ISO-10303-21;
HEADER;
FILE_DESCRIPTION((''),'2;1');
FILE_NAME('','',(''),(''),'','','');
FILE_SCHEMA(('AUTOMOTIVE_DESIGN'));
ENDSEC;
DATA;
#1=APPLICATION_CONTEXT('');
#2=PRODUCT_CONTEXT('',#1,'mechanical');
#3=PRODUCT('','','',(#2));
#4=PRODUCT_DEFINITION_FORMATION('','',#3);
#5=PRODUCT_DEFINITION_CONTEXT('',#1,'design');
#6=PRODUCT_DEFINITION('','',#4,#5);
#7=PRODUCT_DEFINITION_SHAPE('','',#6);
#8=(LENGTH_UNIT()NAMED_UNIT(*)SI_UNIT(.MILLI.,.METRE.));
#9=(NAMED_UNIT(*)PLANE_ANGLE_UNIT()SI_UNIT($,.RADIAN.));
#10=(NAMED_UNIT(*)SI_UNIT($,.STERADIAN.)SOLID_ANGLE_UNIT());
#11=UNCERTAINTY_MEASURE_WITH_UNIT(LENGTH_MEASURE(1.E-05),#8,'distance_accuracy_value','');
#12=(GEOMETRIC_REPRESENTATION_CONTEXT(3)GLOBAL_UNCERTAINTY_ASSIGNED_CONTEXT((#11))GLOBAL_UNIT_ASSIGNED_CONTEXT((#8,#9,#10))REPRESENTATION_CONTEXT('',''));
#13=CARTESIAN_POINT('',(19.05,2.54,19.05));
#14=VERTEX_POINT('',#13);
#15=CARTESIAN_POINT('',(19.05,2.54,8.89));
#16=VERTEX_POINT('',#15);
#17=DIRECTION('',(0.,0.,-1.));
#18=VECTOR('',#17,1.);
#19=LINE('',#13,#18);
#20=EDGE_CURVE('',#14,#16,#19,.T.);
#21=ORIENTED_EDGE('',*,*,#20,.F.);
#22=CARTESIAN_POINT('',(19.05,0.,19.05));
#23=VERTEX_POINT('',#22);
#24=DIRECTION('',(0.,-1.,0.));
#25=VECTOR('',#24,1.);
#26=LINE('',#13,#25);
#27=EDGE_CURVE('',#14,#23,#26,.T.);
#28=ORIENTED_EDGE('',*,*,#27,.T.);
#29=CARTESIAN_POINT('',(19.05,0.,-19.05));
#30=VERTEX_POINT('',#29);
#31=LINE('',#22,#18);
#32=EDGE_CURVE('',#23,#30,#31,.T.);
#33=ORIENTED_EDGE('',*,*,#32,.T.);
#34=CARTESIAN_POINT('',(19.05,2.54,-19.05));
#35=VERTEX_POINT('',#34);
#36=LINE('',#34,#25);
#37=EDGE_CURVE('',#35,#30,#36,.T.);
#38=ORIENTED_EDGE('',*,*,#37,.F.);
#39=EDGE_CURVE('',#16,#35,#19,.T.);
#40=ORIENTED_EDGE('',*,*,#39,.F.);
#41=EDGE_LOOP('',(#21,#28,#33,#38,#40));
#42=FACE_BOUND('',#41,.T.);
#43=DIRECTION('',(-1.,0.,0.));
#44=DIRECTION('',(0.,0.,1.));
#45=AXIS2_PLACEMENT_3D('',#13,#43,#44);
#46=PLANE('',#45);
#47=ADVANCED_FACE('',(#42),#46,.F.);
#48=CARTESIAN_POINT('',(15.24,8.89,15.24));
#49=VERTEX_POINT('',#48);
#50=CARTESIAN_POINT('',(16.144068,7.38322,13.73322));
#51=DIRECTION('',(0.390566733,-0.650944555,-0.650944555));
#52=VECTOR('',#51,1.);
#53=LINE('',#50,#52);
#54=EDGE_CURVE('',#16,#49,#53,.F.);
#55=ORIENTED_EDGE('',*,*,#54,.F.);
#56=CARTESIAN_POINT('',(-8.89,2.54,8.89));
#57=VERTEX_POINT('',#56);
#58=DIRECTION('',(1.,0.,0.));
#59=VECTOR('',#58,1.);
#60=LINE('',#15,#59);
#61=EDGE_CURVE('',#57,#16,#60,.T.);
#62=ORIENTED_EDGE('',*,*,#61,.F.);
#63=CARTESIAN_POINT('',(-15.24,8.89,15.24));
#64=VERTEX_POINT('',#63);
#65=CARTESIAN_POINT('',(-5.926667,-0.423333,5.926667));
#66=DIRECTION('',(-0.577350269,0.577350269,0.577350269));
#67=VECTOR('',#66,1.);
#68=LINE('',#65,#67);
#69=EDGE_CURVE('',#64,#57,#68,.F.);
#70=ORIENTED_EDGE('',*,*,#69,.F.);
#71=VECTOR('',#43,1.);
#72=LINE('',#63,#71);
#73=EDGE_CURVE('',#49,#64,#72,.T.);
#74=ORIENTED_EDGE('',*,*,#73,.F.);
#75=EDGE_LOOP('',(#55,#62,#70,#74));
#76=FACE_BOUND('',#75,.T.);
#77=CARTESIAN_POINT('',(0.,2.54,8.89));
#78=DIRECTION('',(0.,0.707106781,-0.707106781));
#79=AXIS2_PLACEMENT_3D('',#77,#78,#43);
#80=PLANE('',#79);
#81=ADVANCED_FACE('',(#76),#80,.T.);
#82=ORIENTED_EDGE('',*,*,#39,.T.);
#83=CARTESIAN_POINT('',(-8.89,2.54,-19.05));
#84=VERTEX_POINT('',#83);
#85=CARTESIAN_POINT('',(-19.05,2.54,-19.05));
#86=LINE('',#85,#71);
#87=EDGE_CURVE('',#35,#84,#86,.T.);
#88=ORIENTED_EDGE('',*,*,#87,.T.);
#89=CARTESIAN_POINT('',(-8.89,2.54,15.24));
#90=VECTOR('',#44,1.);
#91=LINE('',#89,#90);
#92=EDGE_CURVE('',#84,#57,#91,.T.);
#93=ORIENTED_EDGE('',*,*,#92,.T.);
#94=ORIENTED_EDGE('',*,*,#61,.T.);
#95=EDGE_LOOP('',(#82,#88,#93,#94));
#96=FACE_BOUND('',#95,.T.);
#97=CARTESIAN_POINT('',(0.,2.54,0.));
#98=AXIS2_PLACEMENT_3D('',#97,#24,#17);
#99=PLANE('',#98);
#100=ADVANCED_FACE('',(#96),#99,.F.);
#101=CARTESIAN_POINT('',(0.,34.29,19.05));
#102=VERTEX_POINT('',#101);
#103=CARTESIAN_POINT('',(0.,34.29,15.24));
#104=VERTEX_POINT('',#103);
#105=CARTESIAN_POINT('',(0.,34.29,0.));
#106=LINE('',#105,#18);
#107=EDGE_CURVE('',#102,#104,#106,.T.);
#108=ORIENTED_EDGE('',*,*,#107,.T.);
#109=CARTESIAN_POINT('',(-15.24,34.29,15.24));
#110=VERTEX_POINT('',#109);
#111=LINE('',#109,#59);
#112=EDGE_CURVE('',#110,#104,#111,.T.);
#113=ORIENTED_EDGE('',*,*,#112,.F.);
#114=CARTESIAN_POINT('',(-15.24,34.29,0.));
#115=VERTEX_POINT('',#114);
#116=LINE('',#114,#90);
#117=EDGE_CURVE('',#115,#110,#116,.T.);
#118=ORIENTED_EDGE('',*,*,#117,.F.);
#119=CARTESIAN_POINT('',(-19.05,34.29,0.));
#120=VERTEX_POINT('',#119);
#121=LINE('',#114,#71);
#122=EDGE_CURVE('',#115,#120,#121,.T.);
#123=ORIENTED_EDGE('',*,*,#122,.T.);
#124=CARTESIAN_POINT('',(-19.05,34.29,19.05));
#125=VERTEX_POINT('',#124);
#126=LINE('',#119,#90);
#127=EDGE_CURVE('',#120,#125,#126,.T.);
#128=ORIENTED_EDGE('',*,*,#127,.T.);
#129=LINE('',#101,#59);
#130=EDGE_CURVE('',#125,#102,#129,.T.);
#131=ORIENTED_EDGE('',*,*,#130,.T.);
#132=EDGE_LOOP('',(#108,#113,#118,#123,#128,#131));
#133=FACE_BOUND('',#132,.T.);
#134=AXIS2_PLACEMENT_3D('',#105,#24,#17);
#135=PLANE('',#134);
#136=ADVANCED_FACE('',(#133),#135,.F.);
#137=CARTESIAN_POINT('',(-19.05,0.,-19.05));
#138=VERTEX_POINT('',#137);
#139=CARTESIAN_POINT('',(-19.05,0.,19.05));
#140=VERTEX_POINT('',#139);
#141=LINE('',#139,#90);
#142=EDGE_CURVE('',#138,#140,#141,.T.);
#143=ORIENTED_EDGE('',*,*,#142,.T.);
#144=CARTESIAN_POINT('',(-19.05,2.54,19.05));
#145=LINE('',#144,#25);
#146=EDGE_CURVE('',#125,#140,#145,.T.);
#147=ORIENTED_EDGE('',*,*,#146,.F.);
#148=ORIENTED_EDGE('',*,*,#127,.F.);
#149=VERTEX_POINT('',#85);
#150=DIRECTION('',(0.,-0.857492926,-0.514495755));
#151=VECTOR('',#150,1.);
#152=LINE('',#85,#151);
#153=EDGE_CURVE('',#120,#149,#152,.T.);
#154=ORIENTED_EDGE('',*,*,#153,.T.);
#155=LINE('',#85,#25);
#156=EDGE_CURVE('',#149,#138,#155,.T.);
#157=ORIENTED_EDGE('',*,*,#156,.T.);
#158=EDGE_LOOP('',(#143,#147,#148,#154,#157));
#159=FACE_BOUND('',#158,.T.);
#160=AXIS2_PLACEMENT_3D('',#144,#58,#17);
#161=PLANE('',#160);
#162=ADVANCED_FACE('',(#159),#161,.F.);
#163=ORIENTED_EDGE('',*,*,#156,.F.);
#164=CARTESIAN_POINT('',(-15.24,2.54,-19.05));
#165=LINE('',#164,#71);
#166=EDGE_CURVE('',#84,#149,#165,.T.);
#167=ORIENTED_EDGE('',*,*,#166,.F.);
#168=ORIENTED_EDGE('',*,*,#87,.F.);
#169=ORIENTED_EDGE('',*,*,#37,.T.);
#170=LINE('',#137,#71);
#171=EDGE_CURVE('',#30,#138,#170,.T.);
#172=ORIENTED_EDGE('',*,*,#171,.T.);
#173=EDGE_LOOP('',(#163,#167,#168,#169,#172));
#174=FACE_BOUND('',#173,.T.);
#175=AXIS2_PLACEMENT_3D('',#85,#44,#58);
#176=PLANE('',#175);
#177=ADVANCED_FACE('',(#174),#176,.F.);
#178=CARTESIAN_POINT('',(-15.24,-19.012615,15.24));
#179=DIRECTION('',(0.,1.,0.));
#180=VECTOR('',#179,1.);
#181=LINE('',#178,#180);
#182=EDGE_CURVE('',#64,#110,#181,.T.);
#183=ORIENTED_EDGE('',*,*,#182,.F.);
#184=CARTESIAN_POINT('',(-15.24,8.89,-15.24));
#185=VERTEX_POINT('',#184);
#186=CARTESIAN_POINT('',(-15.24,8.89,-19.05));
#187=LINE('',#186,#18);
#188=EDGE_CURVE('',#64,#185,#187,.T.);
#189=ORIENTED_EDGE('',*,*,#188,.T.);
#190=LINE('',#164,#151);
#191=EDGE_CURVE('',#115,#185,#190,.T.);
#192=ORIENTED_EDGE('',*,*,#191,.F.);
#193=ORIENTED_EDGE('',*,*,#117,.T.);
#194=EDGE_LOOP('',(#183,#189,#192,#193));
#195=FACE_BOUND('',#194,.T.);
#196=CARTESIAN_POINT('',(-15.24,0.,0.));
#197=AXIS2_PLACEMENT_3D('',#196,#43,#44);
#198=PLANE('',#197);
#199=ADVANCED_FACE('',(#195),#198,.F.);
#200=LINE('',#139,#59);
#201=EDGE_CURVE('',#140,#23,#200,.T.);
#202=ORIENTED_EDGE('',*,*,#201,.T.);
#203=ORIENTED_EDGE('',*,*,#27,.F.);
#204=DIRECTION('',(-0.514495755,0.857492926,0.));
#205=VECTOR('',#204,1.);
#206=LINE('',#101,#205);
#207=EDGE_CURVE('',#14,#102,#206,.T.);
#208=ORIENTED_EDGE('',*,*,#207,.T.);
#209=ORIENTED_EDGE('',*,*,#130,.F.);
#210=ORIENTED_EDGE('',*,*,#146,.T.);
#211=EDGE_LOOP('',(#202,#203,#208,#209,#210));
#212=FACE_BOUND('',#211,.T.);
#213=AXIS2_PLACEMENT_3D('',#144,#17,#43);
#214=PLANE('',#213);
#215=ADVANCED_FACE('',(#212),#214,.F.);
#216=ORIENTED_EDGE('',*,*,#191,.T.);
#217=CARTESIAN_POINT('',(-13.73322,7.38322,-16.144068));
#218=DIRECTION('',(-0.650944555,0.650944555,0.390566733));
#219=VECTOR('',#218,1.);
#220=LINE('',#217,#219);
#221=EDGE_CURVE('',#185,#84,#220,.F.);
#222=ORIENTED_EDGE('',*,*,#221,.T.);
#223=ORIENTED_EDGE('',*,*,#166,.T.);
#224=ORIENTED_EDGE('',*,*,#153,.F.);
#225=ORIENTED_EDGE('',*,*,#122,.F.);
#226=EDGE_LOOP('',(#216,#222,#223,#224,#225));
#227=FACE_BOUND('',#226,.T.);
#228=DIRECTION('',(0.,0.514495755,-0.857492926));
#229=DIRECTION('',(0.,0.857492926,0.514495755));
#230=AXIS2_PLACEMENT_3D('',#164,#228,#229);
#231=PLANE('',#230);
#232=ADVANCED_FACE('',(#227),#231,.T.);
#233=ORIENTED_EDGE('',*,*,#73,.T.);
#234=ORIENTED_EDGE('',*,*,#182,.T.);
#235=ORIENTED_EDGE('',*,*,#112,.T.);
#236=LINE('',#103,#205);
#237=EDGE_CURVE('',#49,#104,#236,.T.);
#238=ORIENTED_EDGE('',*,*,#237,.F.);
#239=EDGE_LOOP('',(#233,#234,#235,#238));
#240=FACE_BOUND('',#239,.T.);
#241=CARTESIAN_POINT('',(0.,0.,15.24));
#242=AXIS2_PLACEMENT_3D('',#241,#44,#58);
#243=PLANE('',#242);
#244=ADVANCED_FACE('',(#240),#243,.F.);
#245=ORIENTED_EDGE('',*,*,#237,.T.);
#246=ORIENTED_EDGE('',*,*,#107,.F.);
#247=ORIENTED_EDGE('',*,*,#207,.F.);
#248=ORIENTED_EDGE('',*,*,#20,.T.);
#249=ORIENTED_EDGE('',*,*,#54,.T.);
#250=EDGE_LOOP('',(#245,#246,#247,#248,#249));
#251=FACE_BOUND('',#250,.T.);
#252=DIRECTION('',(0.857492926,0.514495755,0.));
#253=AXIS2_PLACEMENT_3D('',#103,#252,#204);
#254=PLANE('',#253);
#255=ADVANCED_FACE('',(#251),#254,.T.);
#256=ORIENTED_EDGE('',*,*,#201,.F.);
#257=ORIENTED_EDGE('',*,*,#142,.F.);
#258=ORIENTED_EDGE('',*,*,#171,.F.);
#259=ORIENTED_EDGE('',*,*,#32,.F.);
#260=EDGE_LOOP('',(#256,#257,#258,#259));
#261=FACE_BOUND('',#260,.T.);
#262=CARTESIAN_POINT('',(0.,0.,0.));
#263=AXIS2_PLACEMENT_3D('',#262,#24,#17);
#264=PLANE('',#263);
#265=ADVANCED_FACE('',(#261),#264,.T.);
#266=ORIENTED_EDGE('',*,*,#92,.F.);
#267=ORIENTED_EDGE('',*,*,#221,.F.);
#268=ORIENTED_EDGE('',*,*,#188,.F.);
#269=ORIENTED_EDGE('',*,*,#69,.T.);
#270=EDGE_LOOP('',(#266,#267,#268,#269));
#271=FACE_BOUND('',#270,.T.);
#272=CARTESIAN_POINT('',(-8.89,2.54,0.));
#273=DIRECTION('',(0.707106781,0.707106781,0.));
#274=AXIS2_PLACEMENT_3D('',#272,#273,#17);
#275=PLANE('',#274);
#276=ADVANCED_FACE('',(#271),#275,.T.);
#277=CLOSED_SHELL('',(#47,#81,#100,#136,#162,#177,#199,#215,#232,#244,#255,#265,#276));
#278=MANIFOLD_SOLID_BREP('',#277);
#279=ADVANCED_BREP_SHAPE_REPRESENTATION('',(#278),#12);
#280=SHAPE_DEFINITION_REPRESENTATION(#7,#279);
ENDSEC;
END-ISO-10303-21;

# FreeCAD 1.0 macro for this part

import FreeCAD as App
import Part
import Sketcher

V = App.Vector
Q = App.Units.Quantity


def edges_at(feature, points):
    """Names of the edges that pass closest to the given points."""
    edges = feature.Shape.Edges
    near = lambda p: min(range(len(edges)), key=lambda i: edges[i].distToShape(Part.Vertex(*p))[0])
    return sorted({f"Edge{near(p) + 1}" for p in points})

doc = App.newDocument("Part")
body = doc.addObject("PartDesign::Body", "Body")

# Sketch on XZ plane
sketch1 = body.newObject("Sketcher::SketchObject", "Sketch")
sketch1.AttachmentSupport = (doc.getObject("XZ_Plane"), [""])
sketch1.MapMode = "FlatFace"
sketch1.addGeometry([
    Part.LineSegment(V(-19, -19, 0), V(-19, 19, 0)),
    Part.LineSegment(V(-19, 19, 0), V(19, 19, 0)),
    Part.LineSegment(V(19, 19, 0), V(19, -19, 0)),
    Part.LineSegment(V(19, -19, 0), V(-19, -19, 0)),
], False)
sketch1.addConstraint([
    Sketcher.Constraint("Coincident", 0, 2, 1, 1),
    Sketcher.Constraint("Coincident", 1, 2, 2, 1),
    Sketcher.Constraint("Coincident", 2, 2, 3, 1),
    Sketcher.Constraint("Coincident", 3, 2, 0, 1),
    Sketcher.Constraint("Vertical", 0),
    Sketcher.Constraint("Horizontal", 1),
    Sketcher.Constraint("Vertical", 2),
    Sketcher.Constraint("Horizontal", 3),
    Sketcher.Constraint("Symmetric", 0, 2, 2, 2, -1, 1),
    Sketcher.Constraint("Equal", 3, 0),
    Sketcher.Constraint("DistanceX", 1, 1, 1, 2, Q("1.5 in")),
])
pad1 = body.newObject("PartDesign::Pad", "Pad")
pad1.Profile = sketch1
pad1.Length = Q("0.1 in")
pad1.Reversed = True

# Sketch on XZ plane
sketch2 = body.newObject("Sketcher::SketchObject", "Sketch001")
sketch2.AttachmentSupport = (doc.getObject("XZ_Plane"), [""])
sketch2.MapMode = "FlatFace"
sketch2.AttachmentOffset = App.Placement(V(0, 0, -0.1 * 25.4), App.Rotation())
sketch2.addGeometry([
    Part.LineSegment(V(-19, 0, 0), V(-19, 19, 0)),
    Part.LineSegment(V(-19, 19, 0), V(0, 19, 0)),
    Part.LineSegment(V(0, 19, 0), V(0, 0, 0)),
    Part.LineSegment(V(0, 0, 0), V(-19, 0, 0)),
], False)
sketch2.addConstraint([
    Sketcher.Constraint("Coincident", 0, 2, 1, 1),
    Sketcher.Constraint("Coincident", 1, 2, 2, 1),
    Sketcher.Constraint("Coincident", 2, 2, 3, 1),
    Sketcher.Constraint("Coincident", 3, 2, 0, 1),
    Sketcher.Constraint("Vertical", 0),
    Sketcher.Constraint("Horizontal", 1),
    Sketcher.Constraint("Vertical", 2),
    Sketcher.Constraint("Horizontal", 3),
    Sketcher.Constraint("Coincident", 2, 2, -1, 1),
    Sketcher.Constraint("Equal", 3, 0),
    Sketcher.Constraint("DistanceX", 1, 1, 1, 2, Q("0.75 in")),
])
pad2 = body.newObject("PartDesign::Pad", "Pad001")
pad2.Profile = sketch2
pad2.Length = Q("1.25 in")
pad2.Reversed = True

# Sketch on XY plane
sketch3 = body.newObject("Sketcher::SketchObject", "Sketch002")
sketch3.AttachmentSupport = (doc.getObject("XY_Plane"), [""])
sketch3.MapMode = "FlatFace"
sketch3.AttachmentOffset = App.Placement(V(0, 0, 0.75 * 25.4), App.Rotation())
sketch3.addGeometry([
    Part.LineSegment(V(19, 3, 0), V(0, 34, 0)),
    Part.LineSegment(V(0, 34, 0), V(0, 3, 0)),
    Part.LineSegment(V(0, 3, 0), V(19, 3, 0)),
], False)
sketch3.addConstraint([
    Sketcher.Constraint("Coincident", 0, 2, 1, 1),
    Sketcher.Constraint("Coincident", 1, 2, 2, 1),
    Sketcher.Constraint("Coincident", 2, 2, 0, 1),
    Sketcher.Constraint("Vertical", 1),
    Sketcher.Constraint("Horizontal", 2),
    Sketcher.Constraint("PointOnObject", 0, 2, -2),
    Sketcher.Constraint("DistanceX", 2, 1, 2, 2, Q("0.75 in")),
    Sketcher.Constraint("DistanceY", 1, 2, 1, 1, Q("1.25 in")),
    Sketcher.Constraint("DistanceY", -1, 1, 1, 2, Q("0.1 in")),
])
pad3 = body.newObject("PartDesign::Pad", "Pad002")
pad3.Profile = sketch3
pad3.Length = Q("0.15 in")
pad3.Reversed = True

# Sketch on YZ plane
sketch4 = body.newObject("Sketcher::SketchObject", "Sketch003")
sketch4.AttachmentSupport = (doc.getObject("YZ_Plane"), [""])
sketch4.MapMode = "FlatFace"
sketch4.AttachmentOffset = App.Placement(V(0, 0, -0.75 * 25.4), App.Rotation())
sketch4.addGeometry([
    Part.LineSegment(V(3, 0, 0), V(34, 0, 0)),
    Part.LineSegment(V(34, 0, 0), V(3, -19, 0)),
    Part.LineSegment(V(3, -19, 0), V(3, 0, 0)),
], False)
sketch4.addConstraint([
    Sketcher.Constraint("Coincident", 0, 2, 1, 1),
    Sketcher.Constraint("Coincident", 1, 2, 2, 1),
    Sketcher.Constraint("Coincident", 2, 2, 0, 1),
    Sketcher.Constraint("Horizontal", 0),
    Sketcher.Constraint("Vertical", 2),
    Sketcher.Constraint("PointOnObject", 0, 2, -1),
    Sketcher.Constraint("DistanceX", 0, 1, 0, 2, Q("1.25 in")),
    Sketcher.Constraint("DistanceY", 2, 1, 2, 2, Q("0.75 in")),
    Sketcher.Constraint("DistanceX", -1, 1, 1, 2, Q("0.1 in")),
])
pad4 = body.newObject("PartDesign::Pad", "Pad003")
pad4.Profile = sketch4
pad4.Length = Q("0.15 in")

# Sketch on XZ plane
sketch5 = body.newObject("Sketcher::SketchObject", "Sketch004")
sketch5.AttachmentSupport = (doc.getObject("XZ_Plane"), [""])
sketch5.MapMode = "FlatFace"
sketch5.AttachmentOffset = App.Placement(V(0, 0, -1.35 * 25.4), App.Rotation())
sketch5.addGeometry([
    Part.LineSegment(V(-15, 0, 0), V(-15, 15, 0)),
    Part.LineSegment(V(-15, 15, 0), V(0, 15, 0)),
    Part.LineSegment(V(0, 15, 0), V(0, 0, 0)),
    Part.LineSegment(V(0, 0, 0), V(-15, 0, 0)),
], False)
sketch5.addConstraint([
    Sketcher.Constraint("Coincident", 0, 2, 1, 1),
    Sketcher.Constraint("Coincident", 1, 2, 2, 1),
    Sketcher.Constraint("Coincident", 2, 2, 3, 1),
    Sketcher.Constraint("Coincident", 3, 2, 0, 1),
    Sketcher.Constraint("Vertical", 0),
    Sketcher.Constraint("Horizontal", 1),
    Sketcher.Constraint("Vertical", 2),
    Sketcher.Constraint("Horizontal", 3),
    Sketcher.Constraint("Coincident", 2, 2, -1, 1),
    Sketcher.Constraint("Equal", 3, 0),
    Sketcher.Constraint("DistanceX", 1, 1, 1, 2, Q("0.6 in")),
])
pocket1 = body.newObject("PartDesign::Pocket", "Pocket")
pocket1.Profile = sketch5
pocket1.Length = Q("1.25 in")
pocket1.Reversed = True
doc.recompute()

chamfer = body.newObject("PartDesign::Chamfer", "Chamfer")
chamfer.Base = (pocket1, edges_at(pocket1, [(1.905, 2.54, 15.24), (-15.24, 2.54, -1.905)]))
chamfer.Size = Q("0.25 in")

doc.recompute()
